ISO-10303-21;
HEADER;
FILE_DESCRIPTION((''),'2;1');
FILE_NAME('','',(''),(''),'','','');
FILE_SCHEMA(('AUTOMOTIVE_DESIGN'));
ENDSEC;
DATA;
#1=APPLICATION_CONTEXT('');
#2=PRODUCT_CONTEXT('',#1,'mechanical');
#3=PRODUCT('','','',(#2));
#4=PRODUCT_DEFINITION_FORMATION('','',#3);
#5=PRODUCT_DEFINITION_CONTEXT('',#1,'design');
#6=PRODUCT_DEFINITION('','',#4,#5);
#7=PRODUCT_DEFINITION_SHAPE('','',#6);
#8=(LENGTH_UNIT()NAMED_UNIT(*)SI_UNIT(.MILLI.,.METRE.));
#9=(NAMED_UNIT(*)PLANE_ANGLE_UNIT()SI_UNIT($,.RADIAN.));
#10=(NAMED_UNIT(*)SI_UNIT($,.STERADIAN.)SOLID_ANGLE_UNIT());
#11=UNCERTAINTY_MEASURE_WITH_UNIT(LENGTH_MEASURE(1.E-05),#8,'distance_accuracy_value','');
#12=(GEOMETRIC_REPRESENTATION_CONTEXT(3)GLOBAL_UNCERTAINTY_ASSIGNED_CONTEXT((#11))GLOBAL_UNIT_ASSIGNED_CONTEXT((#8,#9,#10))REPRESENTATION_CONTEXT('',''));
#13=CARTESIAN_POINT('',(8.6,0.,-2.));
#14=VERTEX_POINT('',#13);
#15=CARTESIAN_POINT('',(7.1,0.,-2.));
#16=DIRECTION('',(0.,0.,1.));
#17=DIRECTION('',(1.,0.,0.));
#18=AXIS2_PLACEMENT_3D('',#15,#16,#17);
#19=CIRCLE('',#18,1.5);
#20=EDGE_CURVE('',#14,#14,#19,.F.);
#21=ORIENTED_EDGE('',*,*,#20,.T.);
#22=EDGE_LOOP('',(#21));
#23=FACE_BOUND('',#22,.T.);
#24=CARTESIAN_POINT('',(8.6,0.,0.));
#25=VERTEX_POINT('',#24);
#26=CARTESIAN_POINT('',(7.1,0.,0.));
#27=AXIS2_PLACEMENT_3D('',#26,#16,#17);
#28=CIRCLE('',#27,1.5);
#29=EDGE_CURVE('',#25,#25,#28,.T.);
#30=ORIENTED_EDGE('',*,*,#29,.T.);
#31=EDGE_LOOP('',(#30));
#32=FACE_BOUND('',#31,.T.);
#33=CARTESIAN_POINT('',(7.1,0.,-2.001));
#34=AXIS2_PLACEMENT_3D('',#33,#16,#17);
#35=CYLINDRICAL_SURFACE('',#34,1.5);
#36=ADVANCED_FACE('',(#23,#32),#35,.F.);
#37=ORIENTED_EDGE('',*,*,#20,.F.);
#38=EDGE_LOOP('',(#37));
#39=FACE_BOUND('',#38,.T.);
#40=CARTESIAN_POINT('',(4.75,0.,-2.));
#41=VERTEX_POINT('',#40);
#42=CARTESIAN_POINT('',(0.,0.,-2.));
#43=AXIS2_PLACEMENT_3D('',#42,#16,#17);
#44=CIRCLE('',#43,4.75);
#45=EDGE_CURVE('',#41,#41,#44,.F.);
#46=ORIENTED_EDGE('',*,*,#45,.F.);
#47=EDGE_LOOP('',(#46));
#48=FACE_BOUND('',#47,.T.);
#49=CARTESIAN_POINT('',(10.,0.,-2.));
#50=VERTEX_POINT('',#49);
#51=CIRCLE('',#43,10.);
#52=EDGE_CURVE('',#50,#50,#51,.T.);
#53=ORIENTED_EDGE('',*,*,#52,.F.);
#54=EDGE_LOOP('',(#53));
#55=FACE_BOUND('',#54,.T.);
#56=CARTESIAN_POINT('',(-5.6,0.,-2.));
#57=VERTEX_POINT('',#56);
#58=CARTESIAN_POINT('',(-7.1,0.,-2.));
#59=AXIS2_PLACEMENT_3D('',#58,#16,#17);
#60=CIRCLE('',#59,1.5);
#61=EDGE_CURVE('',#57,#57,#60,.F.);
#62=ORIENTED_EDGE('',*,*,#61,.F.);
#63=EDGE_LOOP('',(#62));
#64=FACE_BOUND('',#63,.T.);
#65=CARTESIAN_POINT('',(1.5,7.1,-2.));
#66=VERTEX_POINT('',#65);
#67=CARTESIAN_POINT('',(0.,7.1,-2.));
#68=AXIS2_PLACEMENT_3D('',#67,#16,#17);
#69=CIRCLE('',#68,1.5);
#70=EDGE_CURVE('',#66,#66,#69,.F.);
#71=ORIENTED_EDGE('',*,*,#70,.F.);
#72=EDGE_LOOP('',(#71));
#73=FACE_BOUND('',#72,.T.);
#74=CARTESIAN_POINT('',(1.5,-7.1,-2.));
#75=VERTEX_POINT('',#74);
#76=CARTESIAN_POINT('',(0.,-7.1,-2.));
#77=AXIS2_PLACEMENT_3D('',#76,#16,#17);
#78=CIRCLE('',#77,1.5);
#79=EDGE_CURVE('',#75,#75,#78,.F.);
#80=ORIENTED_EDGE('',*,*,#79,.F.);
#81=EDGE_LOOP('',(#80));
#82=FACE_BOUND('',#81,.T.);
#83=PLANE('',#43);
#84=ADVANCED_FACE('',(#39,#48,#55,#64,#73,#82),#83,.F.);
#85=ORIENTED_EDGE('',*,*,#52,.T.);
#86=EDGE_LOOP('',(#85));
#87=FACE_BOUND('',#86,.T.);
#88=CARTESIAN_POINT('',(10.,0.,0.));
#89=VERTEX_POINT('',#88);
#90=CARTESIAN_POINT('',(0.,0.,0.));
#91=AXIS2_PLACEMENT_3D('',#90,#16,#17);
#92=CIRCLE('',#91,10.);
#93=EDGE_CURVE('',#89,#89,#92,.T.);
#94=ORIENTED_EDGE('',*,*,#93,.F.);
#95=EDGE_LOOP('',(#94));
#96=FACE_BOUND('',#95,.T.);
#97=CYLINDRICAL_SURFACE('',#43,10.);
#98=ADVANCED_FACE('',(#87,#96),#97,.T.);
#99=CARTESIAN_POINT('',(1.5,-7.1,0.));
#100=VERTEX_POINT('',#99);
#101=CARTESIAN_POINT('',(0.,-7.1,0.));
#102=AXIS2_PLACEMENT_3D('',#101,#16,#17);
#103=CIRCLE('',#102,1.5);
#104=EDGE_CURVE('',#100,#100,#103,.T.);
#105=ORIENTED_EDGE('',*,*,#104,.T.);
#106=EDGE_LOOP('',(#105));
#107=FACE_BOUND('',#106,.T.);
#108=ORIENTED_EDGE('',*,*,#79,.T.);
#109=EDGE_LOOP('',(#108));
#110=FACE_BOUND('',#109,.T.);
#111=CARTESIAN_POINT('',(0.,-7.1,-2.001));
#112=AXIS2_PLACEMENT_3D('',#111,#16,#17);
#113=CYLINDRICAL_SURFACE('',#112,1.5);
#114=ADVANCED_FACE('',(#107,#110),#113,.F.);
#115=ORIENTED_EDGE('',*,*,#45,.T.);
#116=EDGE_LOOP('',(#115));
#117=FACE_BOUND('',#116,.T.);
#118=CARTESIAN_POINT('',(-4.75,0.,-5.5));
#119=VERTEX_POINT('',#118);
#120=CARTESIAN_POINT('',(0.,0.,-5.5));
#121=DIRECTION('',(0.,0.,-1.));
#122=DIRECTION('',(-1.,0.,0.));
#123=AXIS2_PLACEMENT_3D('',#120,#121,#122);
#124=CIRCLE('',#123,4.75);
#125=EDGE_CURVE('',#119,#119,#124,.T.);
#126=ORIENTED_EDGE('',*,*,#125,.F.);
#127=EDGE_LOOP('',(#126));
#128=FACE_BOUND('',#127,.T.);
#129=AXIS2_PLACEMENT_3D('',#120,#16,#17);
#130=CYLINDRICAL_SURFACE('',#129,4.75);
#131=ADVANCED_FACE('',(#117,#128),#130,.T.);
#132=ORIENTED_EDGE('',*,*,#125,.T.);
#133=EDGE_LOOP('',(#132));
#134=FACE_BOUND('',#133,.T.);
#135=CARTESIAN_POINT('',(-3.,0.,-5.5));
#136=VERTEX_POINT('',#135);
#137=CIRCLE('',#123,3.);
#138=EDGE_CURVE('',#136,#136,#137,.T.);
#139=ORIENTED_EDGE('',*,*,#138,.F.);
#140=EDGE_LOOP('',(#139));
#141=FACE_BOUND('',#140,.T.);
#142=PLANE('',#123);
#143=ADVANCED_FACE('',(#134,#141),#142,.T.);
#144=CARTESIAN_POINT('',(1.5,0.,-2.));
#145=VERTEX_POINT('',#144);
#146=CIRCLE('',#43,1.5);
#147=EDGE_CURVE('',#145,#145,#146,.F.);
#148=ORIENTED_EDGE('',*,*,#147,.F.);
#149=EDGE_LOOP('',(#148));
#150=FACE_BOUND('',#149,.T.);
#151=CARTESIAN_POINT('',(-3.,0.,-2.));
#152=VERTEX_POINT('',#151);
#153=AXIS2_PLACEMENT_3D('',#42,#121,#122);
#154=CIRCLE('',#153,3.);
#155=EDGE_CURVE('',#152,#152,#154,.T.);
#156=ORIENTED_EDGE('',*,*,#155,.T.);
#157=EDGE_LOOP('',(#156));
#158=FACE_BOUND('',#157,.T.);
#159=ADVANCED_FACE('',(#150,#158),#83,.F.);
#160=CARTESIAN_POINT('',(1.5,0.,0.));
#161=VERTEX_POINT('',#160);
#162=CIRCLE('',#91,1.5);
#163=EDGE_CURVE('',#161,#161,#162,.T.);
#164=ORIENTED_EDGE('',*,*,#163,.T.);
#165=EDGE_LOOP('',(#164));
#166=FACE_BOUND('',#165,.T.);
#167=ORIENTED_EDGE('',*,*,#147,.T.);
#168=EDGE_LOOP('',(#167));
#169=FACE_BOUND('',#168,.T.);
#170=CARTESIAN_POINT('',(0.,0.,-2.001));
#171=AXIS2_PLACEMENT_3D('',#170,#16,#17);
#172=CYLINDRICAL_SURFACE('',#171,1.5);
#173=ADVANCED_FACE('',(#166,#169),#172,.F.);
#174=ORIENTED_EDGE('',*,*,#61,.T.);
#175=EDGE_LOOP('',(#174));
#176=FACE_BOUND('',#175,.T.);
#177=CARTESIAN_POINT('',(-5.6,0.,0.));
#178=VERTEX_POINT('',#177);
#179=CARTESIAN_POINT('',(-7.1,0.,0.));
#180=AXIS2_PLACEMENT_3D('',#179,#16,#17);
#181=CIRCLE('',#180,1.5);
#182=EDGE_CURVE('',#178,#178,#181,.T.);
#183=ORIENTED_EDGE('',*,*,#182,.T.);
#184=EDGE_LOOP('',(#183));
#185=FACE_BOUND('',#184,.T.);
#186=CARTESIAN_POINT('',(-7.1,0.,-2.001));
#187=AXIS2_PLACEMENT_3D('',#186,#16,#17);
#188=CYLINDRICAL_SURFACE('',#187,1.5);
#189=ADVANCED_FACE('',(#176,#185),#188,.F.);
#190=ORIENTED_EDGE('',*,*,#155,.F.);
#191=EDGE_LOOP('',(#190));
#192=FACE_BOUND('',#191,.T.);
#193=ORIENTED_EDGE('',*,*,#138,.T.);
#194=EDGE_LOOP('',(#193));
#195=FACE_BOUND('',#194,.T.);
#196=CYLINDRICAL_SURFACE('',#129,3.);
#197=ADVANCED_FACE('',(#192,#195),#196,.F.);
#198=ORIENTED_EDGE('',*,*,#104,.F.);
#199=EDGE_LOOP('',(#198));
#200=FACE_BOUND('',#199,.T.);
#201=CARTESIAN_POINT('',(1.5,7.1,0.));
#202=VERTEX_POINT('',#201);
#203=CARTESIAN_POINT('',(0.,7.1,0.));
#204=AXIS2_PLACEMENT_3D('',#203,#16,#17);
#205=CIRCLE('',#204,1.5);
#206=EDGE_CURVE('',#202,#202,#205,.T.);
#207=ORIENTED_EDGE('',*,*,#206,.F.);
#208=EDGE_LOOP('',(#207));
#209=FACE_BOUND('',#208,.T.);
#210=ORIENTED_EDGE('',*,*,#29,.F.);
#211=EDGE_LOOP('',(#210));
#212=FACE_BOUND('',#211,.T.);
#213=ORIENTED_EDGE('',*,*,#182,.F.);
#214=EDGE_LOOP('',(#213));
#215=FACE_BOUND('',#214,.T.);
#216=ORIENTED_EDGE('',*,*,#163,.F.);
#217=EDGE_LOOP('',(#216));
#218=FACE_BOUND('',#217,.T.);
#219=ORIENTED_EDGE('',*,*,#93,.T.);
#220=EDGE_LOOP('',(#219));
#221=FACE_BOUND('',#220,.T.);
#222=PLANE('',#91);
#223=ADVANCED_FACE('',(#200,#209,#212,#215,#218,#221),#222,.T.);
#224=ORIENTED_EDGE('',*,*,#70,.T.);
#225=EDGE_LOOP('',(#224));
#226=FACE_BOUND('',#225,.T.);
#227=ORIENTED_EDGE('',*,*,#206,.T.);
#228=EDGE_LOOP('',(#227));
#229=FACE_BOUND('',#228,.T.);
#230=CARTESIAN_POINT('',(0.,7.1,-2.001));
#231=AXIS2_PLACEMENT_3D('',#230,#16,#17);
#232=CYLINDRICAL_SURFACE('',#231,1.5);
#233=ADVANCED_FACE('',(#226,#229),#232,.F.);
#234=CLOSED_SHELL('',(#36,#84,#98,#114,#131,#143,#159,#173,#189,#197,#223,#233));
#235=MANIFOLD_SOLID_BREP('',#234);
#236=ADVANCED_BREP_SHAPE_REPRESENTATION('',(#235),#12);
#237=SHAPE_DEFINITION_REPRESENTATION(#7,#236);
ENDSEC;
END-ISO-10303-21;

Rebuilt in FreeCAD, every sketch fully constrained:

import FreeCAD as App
import Part
import Sketcher
from FreeCAD import Vector
Q = App.Units.Quantity

doc = App.newDocument("Part")
body = doc.addObject("PartDesign::Body", "Body")

# Sketch on XY plane
sketch1 = body.newObject("Sketcher::SketchObject", "Sketch")
sketch1.AttachmentSupport = (doc.getObject("XY_Plane"), [""])
sketch1.MapMode = "FlatFace"
sketch1.addGeometry(Part.Circle(Vector(0, 0, 0), Vector(0, 0, 1), 10), False)
sketch1.addConstraint([
    Sketcher.Constraint("Coincident", 0, 3, -1, 1),
    Sketcher.Constraint("Diameter", 0, Q("20 mm")),
])
pad1 = body.newObject("PartDesign::Pad", "Pad")
pad1.Profile = sketch1
pad1.Length = 2
pad1.Reversed = True

# Sketch on XY plane
sketch2 = body.newObject("Sketcher::SketchObject", "Sketch001")
sketch2.AttachmentSupport = (doc.getObject("XY_Plane"), [""])
sketch2.MapMode = "FlatFace"
sketch2.addGeometry(Part.Circle(Vector(0, 0, 0), Vector(0, 0, 1), 1.5), False)
sketch2.addConstraint([
    Sketcher.Constraint("Coincident", 0, 3, -1, 1),
    Sketcher.Constraint("Diameter", 0, Q("3 mm")),
])
pocket1 = body.newObject("PartDesign::Pocket", "Pocket")
pocket1.Profile = sketch2
pocket1.Type = "UpToFirst"

# Sketch on XY plane
sketch3 = body.newObject("Sketcher::SketchObject", "Sketch002")
sketch3.AttachmentSupport = (doc.getObject("XY_Plane"), [""])
sketch3.MapMode = "FlatFace"
sketch3.addGeometry(Part.Circle(Vector(-7.1, 0, 0), Vector(0, 0, 1), 1.5), False)
sketch3.addConstraint([
    Sketcher.Constraint("PointOnObject", 0, 3, -1),
    Sketcher.Constraint("Diameter", 0, Q("3 mm")),
    Sketcher.Constraint("DistanceX", 0, 3, -1, 1, Q("7.1 mm")),
])
pocket2 = body.newObject("PartDesign::Pocket", "Pocket001")
pocket2.Profile = sketch3
pocket2.Type = "UpToFirst"

# Sketch on XY plane
sketch4 = body.newObject("Sketcher::SketchObject", "Sketch003")
sketch4.AttachmentSupport = (doc.getObject("XY_Plane"), [""])
sketch4.MapMode = "FlatFace"
sketch4.addGeometry(Part.Circle(Vector(0, 7.1, 0), Vector(0, 0, 1), 1.5), False)
sketch4.addConstraint([
    Sketcher.Constraint("PointOnObject", 0, 3, -2),
    Sketcher.Constraint("Diameter", 0, Q("3 mm")),
    Sketcher.Constraint("DistanceY", -1, 1, 0, 3, Q("7.1 mm")),
])
pocket3 = body.newObject("PartDesign::Pocket", "Pocket002")
pocket3.Profile = sketch4
pocket3.Type = "UpToFirst"

# Sketch on XY plane
sketch5 = body.newObject("Sketcher::SketchObject", "Sketch004")
sketch5.AttachmentSupport = (doc.getObject("XY_Plane"), [""])
sketch5.MapMode = "FlatFace"
sketch5.addGeometry(Part.Circle(Vector(7.1, 0, 0), Vector(0, 0, 1), 1.5), False)
sketch5.addConstraint([
    Sketcher.Constraint("PointOnObject", 0, 3, -1),
    Sketcher.Constraint("Diameter", 0, Q("3 mm")),
    Sketcher.Constraint("DistanceX", -1, 1, 0, 3, Q("7.1 mm")),
])
pocket4 = body.newObject("PartDesign::Pocket", "Pocket003")
pocket4.Profile = sketch5
pocket4.Type = "UpToFirst"

# Sketch on XY plane
sketch6 = body.newObject("Sketcher::SketchObject", "Sketch005")
sketch6.AttachmentSupport = (doc.getObject("XY_Plane"), [""])
sketch6.MapMode = "FlatFace"
sketch6.addGeometry(Part.Circle(Vector(0, -7.1, 0), Vector(0, 0, 1), 1.5), False)
sketch6.addConstraint([
    Sketcher.Constraint("PointOnObject", 0, 3, -2),
    Sketcher.Constraint("Diameter", 0, Q("3 mm")),
    Sketcher.Constraint("DistanceY", 0, 3, -1, 1, Q("7.1 mm")),
])
pocket5 = body.newObject("PartDesign::Pocket", "Pocket004")
pocket5.Profile = sketch6
pocket5.Type = "UpToFirst"

# Sketch on XY plane
sketch7 = body.newObject("Sketcher::SketchObject", "Sketch006")
sketch7.AttachmentSupport = (doc.getObject("XY_Plane"), [""])
sketch7.MapMode = "FlatFace"
sketch7.AttachmentOffset = App.Placement(Vector(0, 0, -2), App.Rotation())
sketch7.addGeometry([
    Part.Circle(Vector(0, 0, 0), Vector(0, 0, 1), 4.75),
    Part.Circle(Vector(0, 0, 0), Vector(0, 0, 1), 3),
], False)
sketch7.addConstraint([
    Sketcher.Constraint("Coincident", 0, 3, -1, 1),
    Sketcher.Constraint("Coincident", 1, 3, -1, 1),
    Sketcher.Constraint("Diameter", 1, Q("6 mm")),
    Sketcher.Constraint("Diameter", 0, Q("9.5 mm")),
])
pad2 = body.newObject("PartDesign::Pad", "Pad001")
pad2.Profile = sketch7
pad2.Length = 3.5
pad2.Reversed = True

doc.recompute()
